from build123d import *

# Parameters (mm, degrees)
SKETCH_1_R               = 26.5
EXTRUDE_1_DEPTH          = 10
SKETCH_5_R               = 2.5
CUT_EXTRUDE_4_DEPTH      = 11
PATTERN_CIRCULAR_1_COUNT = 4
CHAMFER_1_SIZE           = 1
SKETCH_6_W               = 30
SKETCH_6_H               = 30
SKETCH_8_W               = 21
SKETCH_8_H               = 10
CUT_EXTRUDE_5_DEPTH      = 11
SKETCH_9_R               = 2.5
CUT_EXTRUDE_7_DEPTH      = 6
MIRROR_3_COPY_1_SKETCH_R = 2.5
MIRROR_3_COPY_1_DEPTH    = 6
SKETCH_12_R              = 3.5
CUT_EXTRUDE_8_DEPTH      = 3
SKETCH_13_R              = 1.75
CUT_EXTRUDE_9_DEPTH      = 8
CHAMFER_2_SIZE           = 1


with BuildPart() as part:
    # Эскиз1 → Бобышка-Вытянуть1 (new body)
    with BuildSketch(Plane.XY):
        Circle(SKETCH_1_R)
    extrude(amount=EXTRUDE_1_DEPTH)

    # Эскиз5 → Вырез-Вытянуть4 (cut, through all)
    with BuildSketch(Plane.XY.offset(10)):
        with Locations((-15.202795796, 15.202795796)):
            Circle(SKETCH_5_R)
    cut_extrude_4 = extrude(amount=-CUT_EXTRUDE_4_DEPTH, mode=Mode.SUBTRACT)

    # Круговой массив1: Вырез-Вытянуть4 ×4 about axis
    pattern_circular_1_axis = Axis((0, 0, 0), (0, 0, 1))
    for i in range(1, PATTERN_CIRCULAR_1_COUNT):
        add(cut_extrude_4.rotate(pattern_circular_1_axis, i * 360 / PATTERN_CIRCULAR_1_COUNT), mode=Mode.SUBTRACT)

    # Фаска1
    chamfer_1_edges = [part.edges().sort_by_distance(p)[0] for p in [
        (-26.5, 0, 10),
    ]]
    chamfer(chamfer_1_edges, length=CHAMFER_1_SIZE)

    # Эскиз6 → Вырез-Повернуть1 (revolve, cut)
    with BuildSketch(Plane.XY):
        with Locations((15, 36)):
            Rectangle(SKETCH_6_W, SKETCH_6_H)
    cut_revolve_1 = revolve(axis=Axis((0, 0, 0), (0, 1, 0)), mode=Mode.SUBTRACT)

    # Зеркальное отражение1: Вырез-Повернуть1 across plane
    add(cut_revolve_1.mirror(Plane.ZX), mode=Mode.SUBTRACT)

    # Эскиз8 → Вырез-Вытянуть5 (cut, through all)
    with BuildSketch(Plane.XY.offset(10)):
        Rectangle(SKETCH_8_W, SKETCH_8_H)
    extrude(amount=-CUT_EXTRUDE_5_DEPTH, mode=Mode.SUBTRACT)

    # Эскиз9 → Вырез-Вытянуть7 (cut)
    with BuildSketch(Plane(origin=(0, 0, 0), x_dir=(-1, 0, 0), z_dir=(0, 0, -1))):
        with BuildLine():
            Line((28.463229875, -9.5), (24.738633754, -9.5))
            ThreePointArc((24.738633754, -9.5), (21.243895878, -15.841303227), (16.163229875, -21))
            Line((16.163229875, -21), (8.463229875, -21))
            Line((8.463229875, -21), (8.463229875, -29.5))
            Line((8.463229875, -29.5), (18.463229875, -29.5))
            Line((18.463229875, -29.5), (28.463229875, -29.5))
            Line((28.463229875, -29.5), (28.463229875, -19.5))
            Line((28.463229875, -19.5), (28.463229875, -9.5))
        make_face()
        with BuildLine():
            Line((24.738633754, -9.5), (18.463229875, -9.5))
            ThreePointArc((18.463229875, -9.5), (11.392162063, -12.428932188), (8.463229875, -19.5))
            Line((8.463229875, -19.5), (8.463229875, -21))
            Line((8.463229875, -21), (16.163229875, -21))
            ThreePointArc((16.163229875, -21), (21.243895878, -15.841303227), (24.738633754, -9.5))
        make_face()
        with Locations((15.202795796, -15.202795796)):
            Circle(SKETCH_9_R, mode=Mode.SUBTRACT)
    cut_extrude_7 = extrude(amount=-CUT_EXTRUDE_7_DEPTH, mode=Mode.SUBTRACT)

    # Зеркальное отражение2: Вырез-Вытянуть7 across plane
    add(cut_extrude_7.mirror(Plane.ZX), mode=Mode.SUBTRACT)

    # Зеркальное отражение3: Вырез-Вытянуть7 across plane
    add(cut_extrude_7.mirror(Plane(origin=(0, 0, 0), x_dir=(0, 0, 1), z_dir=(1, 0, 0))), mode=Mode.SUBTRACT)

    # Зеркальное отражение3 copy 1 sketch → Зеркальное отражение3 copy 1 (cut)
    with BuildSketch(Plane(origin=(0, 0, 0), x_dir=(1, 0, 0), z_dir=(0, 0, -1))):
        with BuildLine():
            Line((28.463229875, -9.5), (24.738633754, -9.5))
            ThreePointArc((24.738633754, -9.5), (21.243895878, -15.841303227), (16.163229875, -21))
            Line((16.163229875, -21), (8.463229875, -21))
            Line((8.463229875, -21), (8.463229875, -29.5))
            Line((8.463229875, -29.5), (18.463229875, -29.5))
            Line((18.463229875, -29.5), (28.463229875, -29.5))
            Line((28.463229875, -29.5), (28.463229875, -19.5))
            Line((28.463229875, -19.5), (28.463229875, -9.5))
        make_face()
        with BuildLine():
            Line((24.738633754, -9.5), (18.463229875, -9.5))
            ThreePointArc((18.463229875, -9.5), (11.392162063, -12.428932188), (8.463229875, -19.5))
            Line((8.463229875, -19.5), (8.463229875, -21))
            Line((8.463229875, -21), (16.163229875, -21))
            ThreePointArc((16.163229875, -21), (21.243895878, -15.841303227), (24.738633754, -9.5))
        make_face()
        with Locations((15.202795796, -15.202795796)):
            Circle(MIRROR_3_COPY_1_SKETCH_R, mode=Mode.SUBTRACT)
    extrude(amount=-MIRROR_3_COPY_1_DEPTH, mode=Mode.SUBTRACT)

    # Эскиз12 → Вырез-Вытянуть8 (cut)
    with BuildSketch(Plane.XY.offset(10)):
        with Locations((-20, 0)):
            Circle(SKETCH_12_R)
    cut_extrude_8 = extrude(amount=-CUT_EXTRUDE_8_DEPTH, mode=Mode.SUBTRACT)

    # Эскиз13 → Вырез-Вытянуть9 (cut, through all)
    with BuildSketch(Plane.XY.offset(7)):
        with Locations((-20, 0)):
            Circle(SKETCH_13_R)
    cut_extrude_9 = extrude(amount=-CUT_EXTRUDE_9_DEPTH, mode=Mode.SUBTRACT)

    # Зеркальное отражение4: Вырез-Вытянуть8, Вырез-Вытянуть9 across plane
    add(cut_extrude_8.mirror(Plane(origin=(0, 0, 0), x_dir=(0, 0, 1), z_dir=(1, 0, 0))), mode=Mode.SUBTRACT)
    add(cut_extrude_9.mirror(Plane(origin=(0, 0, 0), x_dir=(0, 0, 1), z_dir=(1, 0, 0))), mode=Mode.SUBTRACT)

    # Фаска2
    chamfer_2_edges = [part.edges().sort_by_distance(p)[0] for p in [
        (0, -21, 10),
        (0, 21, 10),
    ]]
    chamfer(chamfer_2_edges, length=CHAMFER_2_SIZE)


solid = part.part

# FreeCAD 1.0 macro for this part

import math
import FreeCAD as App
import Part
import Sketcher

V = App.Vector
Q = App.Units.Quantity


def edges_at(feature, points):
    """Names of the edges that pass closest to the given points."""
    edges = feature.Shape.Edges
    near = lambda p: min(range(len(edges)), key=lambda i: edges[i].distToShape(Part.Vertex(*p))[0])
    return sorted({f"Edge{near(p) + 1}" for p in points})

doc = App.newDocument("Part")
body = doc.addObject("PartDesign::Body", "Body")

sketch1 = body.newObject("Sketcher::SketchObject", "Sketch")
sketch1.AttachmentSupport = (doc.getObject("XY_Plane"), [""])
sketch1.MapMode = "FlatFace"
sketch1.addGeometry(Part.Circle(V(0, 0, 0), V(0, 0, 1), 26), False)
sketch1.addConstraint([
    Sketcher.Constraint("Coincident", 0, 3, -1, 1),
    Sketcher.Constraint("Diameter", 0, Q("53 mm")),
])
pad1 = body.newObject("PartDesign::Pad", "Pad")
pad1.Profile = sketch1
pad1.Length = 10

sketch2 = body.newObject("Sketcher::SketchObject", "Sketch001")
sketch2.AttachmentSupport = (doc.getObject("XY_Plane"), [""])
sketch2.MapMode = "FlatFace"
sketch2.AttachmentOffset = App.Placement(V(0, 0, 10), App.Rotation())
sketch2.addGeometry(Part.Circle(V(-15.2, 15.2, 0), V(0, 0, 1), 2.5), False)
sketch2.addConstraint([
    Sketcher.Constraint("Diameter", 0, Q("5 mm")),
    Sketcher.Constraint("DistanceX", 0, 3, -1, 1, Q("15.202796 mm")),
    Sketcher.Constraint("DistanceY", -1, 1, 0, 3, Q("15.202796 mm")),
])
pocket1 = body.newObject("PartDesign::Pocket", "Pocket")
pocket1.Profile = sketch2
pocket1.Type = "ThroughAll"
doc.recompute()

polarpattern = body.newObject("PartDesign::PolarPattern", "PolarPattern")
polarpattern.Originals = [pocket1]
polarpattern.Axis = (doc.getObject("Z_Axis"), [""])
polarpattern.Angle = 360
polarpattern.Occurrences = 4
body.Tip = polarpattern
doc.recompute()

chamfer = body.newObject("PartDesign::Chamfer", "Chamfer")
chamfer.Base = (polarpattern, edges_at(polarpattern, [(-26.5, 0, 10)]))
chamfer.Size = 1

sketch3 = body.newObject("Sketcher::SketchObject", "Sketch002")
sketch3.AttachmentSupport = (doc.getObject("XY_Plane"), [""])
sketch3.MapMode = "FlatFace"
sketch3.addGeometry([
    Part.LineSegment(V(0, 51, 0), V(0, 21, 0)),
    Part.LineSegment(V(0, 21, 0), V(30, 21, 0)),
    Part.LineSegment(V(30, 21, 0), V(30, 51, 0)),
    Part.LineSegment(V(30, 51, 0), V(0, 51, 0)),
], False)
sketch3.addConstraint([
    Sketcher.Constraint("Coincident", 0, 2, 1, 1),
    Sketcher.Constraint("Coincident", 1, 2, 2, 1),
    Sketcher.Constraint("Coincident", 2, 2, 3, 1),
    Sketcher.Constraint("Coincident", 3, 2, 0, 1),
    Sketcher.Constraint("Vertical", 0),
    Sketcher.Constraint("Horizontal", 1),
    Sketcher.Constraint("Vertical", 2),
    Sketcher.Constraint("Horizontal", 3),
    Sketcher.Constraint("PointOnObject", 0, 2, -2),
    Sketcher.Constraint("Equal", 3, 0),
    Sketcher.Constraint("DistanceX", 1, 1, 1, 2, Q("30 mm")),
    Sketcher.Constraint("DistanceY", -1, 1, 0, 2, Q("21 mm")),
])
groove = body.newObject("PartDesign::Groove", "Groove")
groove.Profile = sketch3
groove.ReferenceAxis = (sketch3, ["V_Axis"])
groove.Angle = 360
doc.recompute()

mirrored = body.newObject("PartDesign::Mirrored", "Mirrored")
mirrored.Originals = [groove]
mirrored.MirrorPlane = (doc.getObject("XZ_Plane"), [""])
body.Tip = mirrored

sketch4 = body.newObject("Sketcher::SketchObject", "Sketch003")
sketch4.AttachmentSupport = (doc.getObject("XY_Plane"), [""])
sketch4.MapMode = "FlatFace"
sketch4.AttachmentOffset = App.Placement(V(0, 0, 10), App.Rotation())
sketch4.addGeometry([
    Part.LineSegment(V(-10, 5, 0), V(-10, -5, 0)),
    Part.LineSegment(V(-10, -5, 0), V(10, -5, 0)),
    Part.LineSegment(V(10, -5, 0), V(10, 5, 0)),
    Part.LineSegment(V(10, 5, 0), V(-10, 5, 0)),
], False)
sketch4.addConstraint([
    Sketcher.Constraint("Coincident", 0, 2, 1, 1),
    Sketcher.Constraint("Coincident", 1, 2, 2, 1),
    Sketcher.Constraint("Coincident", 2, 2, 3, 1),
    Sketcher.Constraint("Coincident", 3, 2, 0, 1),
    Sketcher.Constraint("Vertical", 0),
    Sketcher.Constraint("Horizontal", 1),
    Sketcher.Constraint("Vertical", 2),
    Sketcher.Constraint("Horizontal", 3),
    Sketcher.Constraint("Symmetric", 0, 2, 2, 2, -1, 1),
    Sketcher.Constraint("DistanceX", 1, 1, 1, 2, Q("21 mm")),
    Sketcher.Constraint("DistanceY", 0, 2, 0, 1, Q("10 mm")),
])
pocket2 = body.newObject("PartDesign::Pocket", "Pocket001")
pocket2.Profile = sketch4
pocket2.Type = "ThroughAll"

sketch5 = body.newObject("Sketcher::SketchObject", "Sketch004")
sketch5.AttachmentSupport = (doc.getObject("XY_Plane"), [""])
sketch5.MapMode = "FlatFace"
sketch5.addGeometry([
    Part.LineSegment(V(-28.5, -9.5, 0), V(-18.5, -9.5, 0)),
    Part.ArcOfCircle(Part.Circle(V(-18.5, -19.5, 0), V(0, 0, 1), 10), math.radians(0), math.radians(90)),
    Part.LineSegment(V(-8.5, -19.5, 0), V(-8.5, -29.5, 0)),
    Part.LineSegment(V(-8.5, -29.5, 0), V(-28.5, -29.5, 0)),
    Part.LineSegment(V(-28.5, -29.5, 0), V(-28.5, -9.5, 0)),
    Part.Circle(V(-15.2, -15.2, 0), V(0, 0, 1), 2.5),
], False)
sketch5.addConstraint([
    Sketcher.Constraint("Tangent", 0, 2, 1, 2),
    Sketcher.Constraint("Tangent", 1, 1, 2, 1),
    Sketcher.Constraint("Coincident", 2, 2, 3, 1),
    Sketcher.Constraint("Coincident", 3, 2, 4, 1),
    Sketcher.Constraint("Coincident", 4, 2, 0, 1),
    Sketcher.Constraint("Horizontal", 0),
    Sketcher.Constraint("Vertical", 2),
    Sketcher.Constraint("Horizontal", 3),
    Sketcher.Constraint("Vertical", 4),
    Sketcher.Constraint("Equal", 0, 2),
    Sketcher.Constraint("Diameter", 5, Q("5 mm")),
    Sketcher.Constraint("Radius", 1, Q("10 mm")),
    Sketcher.Constraint("DistanceX", 0, 1, 0, 2, Q("10 mm")),
    Sketcher.Constraint("DistanceY", 1, 3, -1, 1, Q("19.5 mm")),
    Sketcher.Constraint("DistanceX", 1, 3, -1, 1, Q("18.46323 mm")),
    Sketcher.Constraint("DistanceX", 5, 3, -1, 1, Q("15.202796 mm")),
    Sketcher.Constraint("DistanceY", 5, 3, -1, 1, Q("15.202796 mm")),
])
pocket3 = body.newObject("PartDesign::Pocket", "Pocket002")
pocket3.Profile = sketch5
pocket3.Length = 6
pocket3.Reversed = True
doc.recompute()

mirrored2 = body.newObject("PartDesign::Mirrored", "Mirrored001")
mirrored2.Originals = [pocket3]
mirrored2.MirrorPlane = (doc.getObject("XZ_Plane"), [""])
body.Tip = mirrored2
doc.recompute()

mirrored3 = body.newObject("PartDesign::Mirrored", "Mirrored002")
mirrored3.Originals = [pocket3]
mirrored3.MirrorPlane = (doc.getObject("YZ_Plane"), [""])
body.Tip = mirrored3

sketch6 = body.newObject("Sketcher::SketchObject", "Sketch005")
sketch6.AttachmentSupport = (doc.getObject("XY_Plane"), [""])
sketch6.MapMode = "FlatFace"
sketch6.addGeometry([
    Part.LineSegment(V(28.5, 9.5, 0), V(18.5, 9.5, 0)),
    Part.ArcOfCircle(Part.Circle(V(18.5, 19.5, 0), V(0, 0, 1), 10), math.radians(180), math.radians(270)),
    Part.LineSegment(V(8.5, 19.5, 0), V(8.5, 29.5, 0)),
    Part.LineSegment(V(8.5, 29.5, 0), V(28.5, 29.5, 0)),
    Part.LineSegment(V(28.5, 29.5, 0), V(28.5, 9.5, 0)),
    Part.Circle(V(15.2, 15.2, 0), V(0, 0, 1), 2.5),
], False)
sketch6.addConstraint([
    Sketcher.Constraint("Tangent", 0, 2, 1, 2),
    Sketcher.Constraint("Tangent", 1, 1, 2, 1),
    Sketcher.Constraint("Coincident", 2, 2, 3, 1),
    Sketcher.Constraint("Coincident", 3, 2, 4, 1),
    Sketcher.Constraint("Coincident", 4, 2, 0, 1),
    Sketcher.Constraint("Horizontal", 0),
    Sketcher.Constraint("Vertical", 2),
    Sketcher.Constraint("Horizontal", 3),
    Sketcher.Constraint("Vertical", 4),
    Sketcher.Constraint("Equal", 0, 2),
    Sketcher.Constraint("Diameter", 5, Q("5 mm")),
    Sketcher.Constraint("Radius", 1, Q("10 mm")),
    Sketcher.Constraint("DistanceX", 0, 2, 0, 1, Q("10 mm")),
    Sketcher.Constraint("DistanceY", -1, 1, 1, 3, Q("19.5 mm")),
    Sketcher.Constraint("DistanceX", -1, 1, 1, 3, Q("18.46323 mm")),
    Sketcher.Constraint("DistanceX", -1, 1, 5, 3, Q("15.202796 mm")),
    Sketcher.Constraint("DistanceY", -1, 1, 5, 3, Q("15.202796 mm")),
])
pocket4 = body.newObject("PartDesign::Pocket", "Pocket003")
pocket4.Profile = sketch6
pocket4.Length = 6
pocket4.Reversed = True

sketch7 = body.newObject("Sketcher::SketchObject", "Sketch006")
sketch7.AttachmentSupport = (doc.getObject("XY_Plane"), [""])
sketch7.MapMode = "FlatFace"
sketch7.AttachmentOffset = App.Placement(V(0, 0, 10), App.Rotation())
sketch7.addGeometry(Part.Circle(V(-20, 0, 0), V(0, 0, 1), 3.5), False)
sketch7.addConstraint([
    Sketcher.Constraint("PointOnObject", 0, 3, -1),
    Sketcher.Constraint("Diameter", 0, Q("7 mm")),
    Sketcher.Constraint("DistanceX", 0, 3, -1, 1, Q("20 mm")),
])
pocket5 = body.newObject("PartDesign::Pocket", "Pocket004")
pocket5.Profile = sketch7
pocket5.Length = 3

sketch8 = body.newObject("Sketcher::SketchObject", "Sketch007")
sketch8.AttachmentSupport = (doc.getObject("XY_Plane"), [""])
sketch8.MapMode = "FlatFace"
sketch8.AttachmentOffset = App.Placement(V(0, 0, 7), App.Rotation())
sketch8.addGeometry(Part.Circle(V(-20, 0, 0), V(0, 0, 1), 1.8), False)
sketch8.addConstraint([
    Sketcher.Constraint("PointOnObject", 0, 3, -1),
    Sketcher.Constraint("Diameter", 0, Q("3.5 mm")),
    Sketcher.Constraint("DistanceX", 0, 3, -1, 1, Q("20 mm")),
])
pocket6 = body.newObject("PartDesign::Pocket", "Pocket005")
pocket6.Profile = sketch8
pocket6.Type = "ThroughAll"
doc.recompute()

mirrored4 = body.newObject("PartDesign::Mirrored", "Mirrored003")
mirrored4.Originals = [pocket5, pocket6]
mirrored4.MirrorPlane = (doc.getObject("YZ_Plane"), [""])
body.Tip = mirrored4
doc.recompute()

chamfer2 = body.newObject("PartDesign::Chamfer", "Chamfer001")
chamfer2.Base = (mirrored4, edges_at(mirrored4, [(0, -21, 10), (0, 21, 10)]))
chamfer2.Size = 1

doc.recompute()
